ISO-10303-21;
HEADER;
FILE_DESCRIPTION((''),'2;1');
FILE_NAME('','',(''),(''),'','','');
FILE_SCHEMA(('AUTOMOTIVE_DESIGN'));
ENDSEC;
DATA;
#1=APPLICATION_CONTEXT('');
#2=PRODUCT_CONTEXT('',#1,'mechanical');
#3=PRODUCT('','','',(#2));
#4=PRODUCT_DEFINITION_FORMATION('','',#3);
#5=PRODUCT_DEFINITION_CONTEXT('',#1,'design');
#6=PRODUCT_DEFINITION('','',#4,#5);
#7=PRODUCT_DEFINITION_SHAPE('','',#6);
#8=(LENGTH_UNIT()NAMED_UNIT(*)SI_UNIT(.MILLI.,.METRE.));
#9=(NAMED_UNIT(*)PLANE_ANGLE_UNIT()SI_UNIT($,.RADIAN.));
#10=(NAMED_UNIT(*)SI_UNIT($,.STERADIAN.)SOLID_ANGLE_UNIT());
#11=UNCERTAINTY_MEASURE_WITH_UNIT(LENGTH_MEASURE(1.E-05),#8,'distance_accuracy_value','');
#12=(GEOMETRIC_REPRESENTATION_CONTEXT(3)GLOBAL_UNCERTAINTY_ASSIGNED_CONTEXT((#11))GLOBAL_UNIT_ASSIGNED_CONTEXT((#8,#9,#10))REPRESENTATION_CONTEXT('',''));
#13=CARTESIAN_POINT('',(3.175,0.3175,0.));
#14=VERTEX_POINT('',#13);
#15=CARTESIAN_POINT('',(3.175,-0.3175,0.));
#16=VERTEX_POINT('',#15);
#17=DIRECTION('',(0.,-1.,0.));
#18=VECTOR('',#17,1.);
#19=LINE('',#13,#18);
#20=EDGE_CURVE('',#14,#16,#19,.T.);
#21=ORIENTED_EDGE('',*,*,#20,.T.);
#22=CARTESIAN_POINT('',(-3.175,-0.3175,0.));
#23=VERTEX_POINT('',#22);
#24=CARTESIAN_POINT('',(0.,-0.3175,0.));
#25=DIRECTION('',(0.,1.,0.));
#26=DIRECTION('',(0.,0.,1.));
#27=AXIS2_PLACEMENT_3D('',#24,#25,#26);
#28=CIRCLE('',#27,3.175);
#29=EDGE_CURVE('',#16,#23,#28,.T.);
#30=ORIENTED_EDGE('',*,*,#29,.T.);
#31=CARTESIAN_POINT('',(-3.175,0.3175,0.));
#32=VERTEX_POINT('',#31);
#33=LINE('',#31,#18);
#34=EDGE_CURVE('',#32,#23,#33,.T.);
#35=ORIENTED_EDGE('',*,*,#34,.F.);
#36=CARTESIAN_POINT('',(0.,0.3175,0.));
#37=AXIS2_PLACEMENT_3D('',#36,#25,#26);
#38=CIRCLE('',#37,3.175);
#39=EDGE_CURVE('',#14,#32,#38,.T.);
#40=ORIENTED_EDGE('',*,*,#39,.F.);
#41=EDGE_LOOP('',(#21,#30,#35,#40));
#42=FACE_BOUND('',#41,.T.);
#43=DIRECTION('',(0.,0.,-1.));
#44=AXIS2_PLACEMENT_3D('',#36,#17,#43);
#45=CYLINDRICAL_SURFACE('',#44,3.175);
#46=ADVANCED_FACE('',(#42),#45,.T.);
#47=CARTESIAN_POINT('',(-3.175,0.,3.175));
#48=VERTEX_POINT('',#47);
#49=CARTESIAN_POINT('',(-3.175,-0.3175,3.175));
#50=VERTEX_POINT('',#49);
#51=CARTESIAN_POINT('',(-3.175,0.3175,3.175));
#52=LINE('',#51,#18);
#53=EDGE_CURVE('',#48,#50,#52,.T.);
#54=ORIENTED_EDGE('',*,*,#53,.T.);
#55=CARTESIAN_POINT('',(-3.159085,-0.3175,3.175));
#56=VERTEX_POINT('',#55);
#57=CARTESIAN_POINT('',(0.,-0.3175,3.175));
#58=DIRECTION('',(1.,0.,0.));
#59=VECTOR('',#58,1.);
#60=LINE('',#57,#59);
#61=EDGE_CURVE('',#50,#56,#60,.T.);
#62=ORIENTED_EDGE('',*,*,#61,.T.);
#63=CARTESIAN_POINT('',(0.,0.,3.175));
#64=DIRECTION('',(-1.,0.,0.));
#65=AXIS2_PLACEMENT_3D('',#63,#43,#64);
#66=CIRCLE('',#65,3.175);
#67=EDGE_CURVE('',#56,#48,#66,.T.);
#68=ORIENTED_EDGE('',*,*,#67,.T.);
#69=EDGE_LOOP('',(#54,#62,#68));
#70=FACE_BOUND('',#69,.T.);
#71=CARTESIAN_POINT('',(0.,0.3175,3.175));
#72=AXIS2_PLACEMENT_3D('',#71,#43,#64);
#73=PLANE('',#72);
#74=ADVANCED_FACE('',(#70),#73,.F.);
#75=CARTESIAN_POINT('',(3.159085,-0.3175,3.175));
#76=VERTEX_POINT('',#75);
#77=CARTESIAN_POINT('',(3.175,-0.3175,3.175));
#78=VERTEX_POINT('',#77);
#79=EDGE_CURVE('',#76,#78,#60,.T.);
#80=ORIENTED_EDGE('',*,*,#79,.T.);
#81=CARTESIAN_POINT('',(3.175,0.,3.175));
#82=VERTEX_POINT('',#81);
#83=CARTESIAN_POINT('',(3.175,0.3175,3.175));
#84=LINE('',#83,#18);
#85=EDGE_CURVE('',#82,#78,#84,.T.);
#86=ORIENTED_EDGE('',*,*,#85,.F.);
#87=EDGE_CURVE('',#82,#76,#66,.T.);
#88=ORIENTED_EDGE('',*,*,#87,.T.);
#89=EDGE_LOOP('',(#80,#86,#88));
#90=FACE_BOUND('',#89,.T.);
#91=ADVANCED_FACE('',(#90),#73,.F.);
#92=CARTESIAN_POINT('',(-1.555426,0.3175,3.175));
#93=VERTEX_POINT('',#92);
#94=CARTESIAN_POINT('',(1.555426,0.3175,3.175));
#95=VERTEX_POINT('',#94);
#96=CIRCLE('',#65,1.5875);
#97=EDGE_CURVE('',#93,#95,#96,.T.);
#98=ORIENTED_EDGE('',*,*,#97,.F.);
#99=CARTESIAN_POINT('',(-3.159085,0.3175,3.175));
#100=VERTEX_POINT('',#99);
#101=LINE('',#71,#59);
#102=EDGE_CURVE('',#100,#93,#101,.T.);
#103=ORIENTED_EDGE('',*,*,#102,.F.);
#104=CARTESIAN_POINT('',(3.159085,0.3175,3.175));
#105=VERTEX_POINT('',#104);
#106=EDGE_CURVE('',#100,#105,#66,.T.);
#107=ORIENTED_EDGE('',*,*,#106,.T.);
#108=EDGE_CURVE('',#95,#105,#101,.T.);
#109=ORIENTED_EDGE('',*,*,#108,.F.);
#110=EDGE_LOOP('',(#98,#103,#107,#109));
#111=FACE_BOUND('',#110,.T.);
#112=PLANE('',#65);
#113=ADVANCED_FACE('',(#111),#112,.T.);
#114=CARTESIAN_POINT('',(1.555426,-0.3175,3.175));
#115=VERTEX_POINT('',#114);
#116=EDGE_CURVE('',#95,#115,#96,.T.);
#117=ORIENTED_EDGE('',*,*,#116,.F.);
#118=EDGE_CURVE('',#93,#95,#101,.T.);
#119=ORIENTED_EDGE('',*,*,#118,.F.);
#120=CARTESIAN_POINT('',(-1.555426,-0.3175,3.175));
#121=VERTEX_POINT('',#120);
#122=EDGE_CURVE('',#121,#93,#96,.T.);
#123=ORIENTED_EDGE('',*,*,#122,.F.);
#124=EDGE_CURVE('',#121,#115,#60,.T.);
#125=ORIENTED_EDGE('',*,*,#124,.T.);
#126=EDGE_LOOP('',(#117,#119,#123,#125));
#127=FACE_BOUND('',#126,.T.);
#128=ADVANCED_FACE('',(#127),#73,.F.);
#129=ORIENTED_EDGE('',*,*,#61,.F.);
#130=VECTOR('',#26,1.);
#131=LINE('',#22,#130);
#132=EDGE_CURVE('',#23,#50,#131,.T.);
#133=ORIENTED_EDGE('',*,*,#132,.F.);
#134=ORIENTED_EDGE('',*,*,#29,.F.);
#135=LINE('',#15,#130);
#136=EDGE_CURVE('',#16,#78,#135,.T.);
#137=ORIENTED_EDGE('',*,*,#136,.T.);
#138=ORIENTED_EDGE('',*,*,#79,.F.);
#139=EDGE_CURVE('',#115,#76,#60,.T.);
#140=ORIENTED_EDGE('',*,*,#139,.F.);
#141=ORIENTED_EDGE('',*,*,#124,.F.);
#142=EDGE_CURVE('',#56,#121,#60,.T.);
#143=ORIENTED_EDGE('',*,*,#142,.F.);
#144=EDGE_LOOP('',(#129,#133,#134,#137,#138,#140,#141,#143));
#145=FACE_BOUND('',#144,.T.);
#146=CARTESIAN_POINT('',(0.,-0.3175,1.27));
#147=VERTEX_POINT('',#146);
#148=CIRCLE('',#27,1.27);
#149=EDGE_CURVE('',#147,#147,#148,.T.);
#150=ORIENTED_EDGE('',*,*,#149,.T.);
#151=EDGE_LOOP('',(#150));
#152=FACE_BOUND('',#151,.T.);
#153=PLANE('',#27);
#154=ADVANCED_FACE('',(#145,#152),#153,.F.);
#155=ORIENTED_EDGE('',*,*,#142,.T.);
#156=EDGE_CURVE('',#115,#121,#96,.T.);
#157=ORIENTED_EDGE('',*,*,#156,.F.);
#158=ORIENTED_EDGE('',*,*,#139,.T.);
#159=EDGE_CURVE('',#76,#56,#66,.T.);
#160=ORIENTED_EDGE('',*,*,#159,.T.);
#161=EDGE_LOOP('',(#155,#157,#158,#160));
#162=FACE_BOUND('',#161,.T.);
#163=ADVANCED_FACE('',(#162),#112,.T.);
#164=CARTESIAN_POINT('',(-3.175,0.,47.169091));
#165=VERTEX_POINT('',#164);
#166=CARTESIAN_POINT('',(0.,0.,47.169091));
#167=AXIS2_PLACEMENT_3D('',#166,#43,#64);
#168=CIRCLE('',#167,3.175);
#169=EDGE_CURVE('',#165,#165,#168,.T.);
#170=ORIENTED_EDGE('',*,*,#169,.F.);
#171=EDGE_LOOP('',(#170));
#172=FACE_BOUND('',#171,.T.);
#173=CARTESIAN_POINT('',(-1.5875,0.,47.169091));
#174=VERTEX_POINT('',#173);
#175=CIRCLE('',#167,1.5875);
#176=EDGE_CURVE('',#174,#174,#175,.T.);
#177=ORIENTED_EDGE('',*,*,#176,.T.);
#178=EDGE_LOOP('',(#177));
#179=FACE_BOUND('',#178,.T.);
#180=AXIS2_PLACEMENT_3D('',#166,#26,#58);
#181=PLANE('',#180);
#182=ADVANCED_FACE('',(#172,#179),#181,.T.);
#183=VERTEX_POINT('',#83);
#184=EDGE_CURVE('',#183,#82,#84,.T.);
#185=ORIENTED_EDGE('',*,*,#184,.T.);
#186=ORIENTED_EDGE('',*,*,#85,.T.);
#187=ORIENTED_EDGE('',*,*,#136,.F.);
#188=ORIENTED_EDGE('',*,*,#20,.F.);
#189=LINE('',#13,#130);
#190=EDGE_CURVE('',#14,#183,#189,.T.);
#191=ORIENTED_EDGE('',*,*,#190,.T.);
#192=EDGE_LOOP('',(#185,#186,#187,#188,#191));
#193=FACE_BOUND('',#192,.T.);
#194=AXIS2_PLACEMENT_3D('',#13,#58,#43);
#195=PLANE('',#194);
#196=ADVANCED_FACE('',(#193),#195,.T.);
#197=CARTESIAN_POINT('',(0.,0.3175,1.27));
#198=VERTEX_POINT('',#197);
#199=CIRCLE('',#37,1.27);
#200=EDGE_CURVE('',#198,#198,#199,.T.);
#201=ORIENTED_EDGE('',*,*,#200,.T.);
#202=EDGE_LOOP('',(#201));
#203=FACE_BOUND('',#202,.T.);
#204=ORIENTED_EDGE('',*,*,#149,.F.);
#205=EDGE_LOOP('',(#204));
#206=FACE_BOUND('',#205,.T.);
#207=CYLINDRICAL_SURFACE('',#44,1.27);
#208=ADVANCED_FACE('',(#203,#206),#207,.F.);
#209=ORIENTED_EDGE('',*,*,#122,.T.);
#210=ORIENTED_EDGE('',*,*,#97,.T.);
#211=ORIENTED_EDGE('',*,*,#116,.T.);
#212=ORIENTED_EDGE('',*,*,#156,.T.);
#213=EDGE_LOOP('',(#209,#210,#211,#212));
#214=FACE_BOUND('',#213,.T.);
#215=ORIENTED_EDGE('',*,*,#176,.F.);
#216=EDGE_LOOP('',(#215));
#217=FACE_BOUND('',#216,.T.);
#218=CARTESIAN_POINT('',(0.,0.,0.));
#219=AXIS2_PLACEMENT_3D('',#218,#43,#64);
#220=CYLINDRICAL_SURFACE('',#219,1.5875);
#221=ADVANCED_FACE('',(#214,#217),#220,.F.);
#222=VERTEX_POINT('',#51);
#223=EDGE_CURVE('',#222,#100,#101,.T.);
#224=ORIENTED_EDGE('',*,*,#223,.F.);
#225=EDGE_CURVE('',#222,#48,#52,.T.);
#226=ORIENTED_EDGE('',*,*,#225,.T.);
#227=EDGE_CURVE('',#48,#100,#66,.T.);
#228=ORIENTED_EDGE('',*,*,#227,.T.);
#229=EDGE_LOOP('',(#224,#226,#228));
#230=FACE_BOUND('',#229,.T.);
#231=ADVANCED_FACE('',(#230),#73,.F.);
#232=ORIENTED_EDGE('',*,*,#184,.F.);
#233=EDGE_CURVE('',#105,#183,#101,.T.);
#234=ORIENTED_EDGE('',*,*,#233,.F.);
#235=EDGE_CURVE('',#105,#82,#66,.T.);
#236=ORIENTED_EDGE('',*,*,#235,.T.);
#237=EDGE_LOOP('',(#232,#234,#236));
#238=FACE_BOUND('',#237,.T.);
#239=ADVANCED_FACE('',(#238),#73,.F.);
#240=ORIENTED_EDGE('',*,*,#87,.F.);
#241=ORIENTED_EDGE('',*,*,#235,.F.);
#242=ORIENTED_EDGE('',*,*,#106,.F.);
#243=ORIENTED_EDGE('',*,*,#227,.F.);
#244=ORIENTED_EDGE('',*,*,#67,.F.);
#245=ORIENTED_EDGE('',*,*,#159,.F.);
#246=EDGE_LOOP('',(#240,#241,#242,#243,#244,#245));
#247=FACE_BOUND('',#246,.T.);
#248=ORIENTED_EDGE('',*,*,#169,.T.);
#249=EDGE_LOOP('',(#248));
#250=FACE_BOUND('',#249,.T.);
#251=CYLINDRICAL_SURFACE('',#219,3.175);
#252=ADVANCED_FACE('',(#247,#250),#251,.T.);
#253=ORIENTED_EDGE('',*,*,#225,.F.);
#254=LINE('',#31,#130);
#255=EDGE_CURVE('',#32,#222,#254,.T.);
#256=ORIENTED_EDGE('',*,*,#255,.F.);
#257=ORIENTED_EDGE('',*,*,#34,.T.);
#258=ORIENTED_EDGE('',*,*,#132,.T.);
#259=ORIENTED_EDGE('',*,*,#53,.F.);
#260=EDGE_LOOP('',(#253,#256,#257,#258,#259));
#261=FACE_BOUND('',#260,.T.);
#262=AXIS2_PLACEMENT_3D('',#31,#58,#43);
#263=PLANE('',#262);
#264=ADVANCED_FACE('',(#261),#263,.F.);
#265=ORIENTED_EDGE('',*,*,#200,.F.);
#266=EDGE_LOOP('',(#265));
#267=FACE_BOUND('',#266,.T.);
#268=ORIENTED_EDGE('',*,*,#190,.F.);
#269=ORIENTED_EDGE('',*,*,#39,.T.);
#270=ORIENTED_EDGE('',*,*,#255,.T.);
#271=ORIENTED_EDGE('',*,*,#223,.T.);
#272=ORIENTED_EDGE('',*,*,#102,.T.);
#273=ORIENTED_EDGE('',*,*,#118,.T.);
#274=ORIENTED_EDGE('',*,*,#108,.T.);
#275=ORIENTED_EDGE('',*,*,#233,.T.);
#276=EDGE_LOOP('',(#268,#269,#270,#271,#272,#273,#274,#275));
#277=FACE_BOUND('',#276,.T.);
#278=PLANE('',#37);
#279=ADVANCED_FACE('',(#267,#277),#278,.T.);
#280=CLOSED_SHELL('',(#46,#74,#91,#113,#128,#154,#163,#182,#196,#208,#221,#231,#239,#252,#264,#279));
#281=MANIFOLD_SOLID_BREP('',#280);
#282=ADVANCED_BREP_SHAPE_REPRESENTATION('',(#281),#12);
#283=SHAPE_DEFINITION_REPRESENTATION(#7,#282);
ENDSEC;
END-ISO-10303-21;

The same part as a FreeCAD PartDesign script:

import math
import FreeCAD as App
import Part
import Sketcher
Q = App.Units.Quantity


def add_polygon(sketch, points):
    """Adds a closed chain of lines whose ends are joined by coincident constraints."""
    first, n = sketch.GeometryCount, len(points)
    for a, b in zip(points, points[1:] + points[:1]):
        sketch.addGeometry(Part.LineSegment(App.Vector(*a, 0), App.Vector(*b, 0)), False)
    for i in range(n):
        sketch.addConstraint(Sketcher.Constraint("Coincident", first + i, 2, first + (i + 1) % n, 1))

doc = App.newDocument("Part")
params = doc.addObject("Spreadsheet::Sheet", "Params")
for row, (alias, value) in enumerate([
    ("sketch1_width", "0.0625 in"),
    ("revolution_angle", "360 deg"),
    ("sketch2_radius", "0.05 in"),
    ("sketch2_radius2", "0.125 in"),
    ("sketch2_height", "0.125 in"),
    ("pad1_length", "0.0125 in"),
    ("pad1_length2", "0.0125 in"),
], start=1):
    params.set(f"A{row}", alias)
    params.set(f"B{row}", "=" + value)
    params.setAlias(f"B{row}", alias)

body = doc.addObject("PartDesign::Body", "Body")

# Sketch on XZ plane
sketch1 = doc.addObject("Sketcher::SketchObject", "Sketch")
body.addObject(sketch1)
sketch1.AttachmentSupport = (doc.XZ_Plane, [""])
sketch1.MapMode = "FlatFace"
add_polygon(sketch1, [(-3.2, 47.2), (-1.6, 47.2), (-1.6, 3.2), (-3.2, 3.2)])  # lines 0-3
sketch1.addConstraint(Sketcher.Constraint("Horizontal", 0))
sketch1.addConstraint(Sketcher.Constraint("Vertical", 1))
sketch1.addConstraint(Sketcher.Constraint("Horizontal", 2))
sketch1.addConstraint(Sketcher.Constraint("Vertical", 3))
sketch1.addConstraint(Sketcher.Constraint("DistanceX", 0, 1, 0, 2, Q("0.0625 in")))
sketch1.addConstraint(Sketcher.Constraint("DistanceX", 0, 2, -1, 1, Q("0.0625 in")))
sketch1.addConstraint(Sketcher.Constraint("DistanceY", -1, 1, 1, 2, Q("0.125 in")))
sketch1.addConstraint(Sketcher.Constraint("DistanceY", 1, 2, 1, 1, 43.994091))
sketch1.setExpression("Constraints[8]", "Params.sketch1_width")
revolution = doc.addObject("PartDesign::Revolution", "Revolution")
body.addObject(revolution)
revolution.Profile = sketch1
revolution.ReferenceAxis = (sketch1, ["V_Axis"])
revolution.setExpression("Angle", "Params.revolution_angle")

# Sketch on XZ plane
sketch2 = doc.addObject("Sketcher::SketchObject", "Sketch001")
body.addObject(sketch2)
sketch2.AttachmentSupport = (doc.XZ_Plane, [""])
sketch2.MapMode = "FlatFace"
sketch2.addGeometry(Part.ArcOfCircle(Part.Circle(App.Vector(0, 0, 0), App.Vector(0, 0, 1), 3.2), math.radians(-120), math.radians(-90)), False)
sketch2.addGeometry(Part.ArcOfCircle(Part.Circle(App.Vector(0, 0, 0), App.Vector(0, 0, 1), 3.2), math.radians(180), math.radians(240)), False)
sketch2.addGeometry(Part.LineSegment(App.Vector(-3.2, 0, 0), App.Vector(-3.2, 3.2, 0)), False)
sketch2.addGeometry(Part.LineSegment(App.Vector(-3.2, 3.2, 0), App.Vector(3.2, 3.2, 0)), False)
sketch2.addGeometry(Part.LineSegment(App.Vector(3.2, 3.2, 0), App.Vector(3.2, 0, 0)), False)
sketch2.addGeometry(Part.ArcOfCircle(Part.Circle(App.Vector(0, 0, 0), App.Vector(0, 0, 1), 3.2), math.radians(-60), math.radians(0)), False)
sketch2.addGeometry(Part.ArcOfCircle(Part.Circle(App.Vector(0, 0, 0), App.Vector(0, 0, 1), 3.2), math.radians(-90), math.radians(-60)), False)
sketch2.addGeometry(Part.ArcOfCircle(Part.Circle(App.Vector(0, 0, 0), App.Vector(0, 0, 1), 1.3), math.radians(90), math.radians(270)), False)
sketch2.addGeometry(Part.ArcOfCircle(Part.Circle(App.Vector(0, 0, 0), App.Vector(0, 0, 1), 1.3), math.radians(-90), math.radians(0)), False)
sketch2.addGeometry(Part.ArcOfCircle(Part.Circle(App.Vector(0, 0, 0), App.Vector(0, 0, 1), 1.3), math.radians(0), math.radians(90)), False)
sketch2.addConstraint(Sketcher.Constraint("Tangent", 0, 1, 1, 2))
sketch2.addConstraint(Sketcher.Constraint("Tangent", 1, 1, 2, 1))
sketch2.addConstraint(Sketcher.Constraint("Coincident", 2, 2, 3, 1))
sketch2.addConstraint(Sketcher.Constraint("Coincident", 3, 2, 4, 1))
sketch2.addConstraint(Sketcher.Constraint("Tangent", 4, 2, 5, 2))
sketch2.addConstraint(Sketcher.Constraint("Tangent", 5, 1, 6, 2))
sketch2.addConstraint(Sketcher.Constraint("Tangent", 6, 1, 0, 2))
sketch2.addConstraint(Sketcher.Constraint("Tangent", 7, 2, 8, 1))
sketch2.addConstraint(Sketcher.Constraint("Tangent", 8, 2, 9, 1))
sketch2.addConstraint(Sketcher.Constraint("Tangent", 9, 2, 7, 1))
sketch2.addConstraint(Sketcher.Constraint("Vertical", 2))
sketch2.addConstraint(Sketcher.Constraint("Horizontal", 3))
sketch2.addConstraint(Sketcher.Constraint("Vertical", 4))
sketch2.addConstraint(Sketcher.Constraint("Coincident", 0, 3, -1, 1))
sketch2.addConstraint(Sketcher.Constraint("Coincident", 5, 3, -1, 1))
sketch2.addConstraint(Sketcher.Constraint("Coincident", 7, 3, -1, 1))
sketch2.addConstraint(Sketcher.Constraint("Equal", 0, 1))
sketch2.addConstraint(Sketcher.Constraint("PointOnObject", 6, 1, -2))
sketch2.addConstraint(Sketcher.Constraint("PointOnObject", 7, 2, -2))
sketch2.addConstraint(Sketcher.Constraint("PointOnObject", 8, 2, -1))
sketch2.addConstraint(Sketcher.Constraint("PointOnObject", 9, 2, -2))
sketch2.addConstraint(Sketcher.Constraint("Horizontal", 0, 1, 5, 1))
sketch2.addConstraint(Sketcher.Constraint("Radius", 7, Q("0.05 in")))
sketch2.addConstraint(Sketcher.Constraint("Radius", 0, Q("0.125 in")))
sketch2.addConstraint(Sketcher.Constraint("DistanceY", 2, 1, 2, 2, Q("0.125 in")))
sketch2.addConstraint(Sketcher.Constraint("DistanceX", 0, 1, -1, 1, Q("0.0625 in")))
sketch2.setExpression("Constraints[22]", "Params.sketch2_radius")
sketch2.setExpression("Constraints[23]", "Params.sketch2_radius2")
sketch2.setExpression("Constraints[24]", "Params.sketch2_height")
pad1 = doc.addObject("PartDesign::Pad", "Pad")
body.addObject(pad1)
pad1.Profile = sketch2
pad1.Type = "TwoLengths"
pad1.setExpression("Length", "Params.pad1_length")
pad1.setExpression("Length2", "Params.pad1_length2")
pad1.Reversed = True

doc.recompute()
